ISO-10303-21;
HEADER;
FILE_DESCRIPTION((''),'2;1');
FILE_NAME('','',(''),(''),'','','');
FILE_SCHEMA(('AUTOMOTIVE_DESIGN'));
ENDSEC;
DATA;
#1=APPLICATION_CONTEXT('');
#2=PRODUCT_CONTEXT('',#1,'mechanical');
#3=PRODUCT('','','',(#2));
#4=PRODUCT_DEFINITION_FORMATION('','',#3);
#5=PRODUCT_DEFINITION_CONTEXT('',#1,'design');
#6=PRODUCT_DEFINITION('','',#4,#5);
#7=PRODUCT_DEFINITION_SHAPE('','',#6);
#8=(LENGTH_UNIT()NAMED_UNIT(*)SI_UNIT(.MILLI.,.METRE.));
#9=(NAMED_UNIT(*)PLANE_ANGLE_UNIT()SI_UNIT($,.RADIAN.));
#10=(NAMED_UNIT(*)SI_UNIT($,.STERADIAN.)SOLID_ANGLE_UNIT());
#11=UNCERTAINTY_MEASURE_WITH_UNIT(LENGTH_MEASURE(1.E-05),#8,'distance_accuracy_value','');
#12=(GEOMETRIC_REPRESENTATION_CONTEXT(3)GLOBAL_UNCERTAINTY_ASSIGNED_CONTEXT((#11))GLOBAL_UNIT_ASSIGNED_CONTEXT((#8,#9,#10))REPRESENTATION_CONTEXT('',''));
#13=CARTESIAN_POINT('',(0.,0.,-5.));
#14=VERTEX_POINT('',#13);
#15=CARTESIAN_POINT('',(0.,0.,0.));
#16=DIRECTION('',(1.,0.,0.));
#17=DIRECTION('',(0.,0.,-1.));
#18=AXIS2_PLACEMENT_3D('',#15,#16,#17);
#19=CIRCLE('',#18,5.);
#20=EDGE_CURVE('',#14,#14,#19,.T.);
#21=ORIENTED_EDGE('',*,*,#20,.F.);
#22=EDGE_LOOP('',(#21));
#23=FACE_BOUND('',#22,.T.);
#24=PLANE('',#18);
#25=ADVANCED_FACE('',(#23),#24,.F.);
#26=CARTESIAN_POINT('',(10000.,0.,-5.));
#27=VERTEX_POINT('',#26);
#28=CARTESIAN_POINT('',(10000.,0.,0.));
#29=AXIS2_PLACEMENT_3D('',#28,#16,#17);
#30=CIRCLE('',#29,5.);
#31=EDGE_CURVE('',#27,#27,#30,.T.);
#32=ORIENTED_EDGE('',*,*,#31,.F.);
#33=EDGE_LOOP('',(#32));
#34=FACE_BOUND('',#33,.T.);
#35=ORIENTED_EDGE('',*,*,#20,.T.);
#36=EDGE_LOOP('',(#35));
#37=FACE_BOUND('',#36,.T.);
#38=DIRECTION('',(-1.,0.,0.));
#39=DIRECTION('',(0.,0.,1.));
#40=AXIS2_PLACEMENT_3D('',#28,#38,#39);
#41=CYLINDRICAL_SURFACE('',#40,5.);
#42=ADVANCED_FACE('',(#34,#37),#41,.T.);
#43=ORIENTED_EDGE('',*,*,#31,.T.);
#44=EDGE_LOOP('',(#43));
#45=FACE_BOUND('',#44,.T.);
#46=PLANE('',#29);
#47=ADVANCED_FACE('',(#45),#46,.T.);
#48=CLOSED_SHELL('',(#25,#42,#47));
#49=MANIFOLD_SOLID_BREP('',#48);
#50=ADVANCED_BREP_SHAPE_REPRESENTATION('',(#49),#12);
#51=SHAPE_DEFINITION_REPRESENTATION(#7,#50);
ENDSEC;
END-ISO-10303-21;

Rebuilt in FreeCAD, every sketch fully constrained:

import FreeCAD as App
import Part
import Sketcher
from FreeCAD import Vector
Q = App.Units.Quantity

doc = App.newDocument("Part")
body = doc.addObject("PartDesign::Body", "Body")

# Sketch on YZ plane
sketch1 = body.newObject("Sketcher::SketchObject", "Sketch")
sketch1.AttachmentSupport = (doc.getObject("YZ_Plane"), [""])
sketch1.MapMode = "FlatFace"
sketch1.addGeometry(Part.Circle(Vector(0, 0, 0), Vector(0, 0, 1), 5), False)
sketch1.addConstraint([
    Sketcher.Constraint("Coincident", 0, 3, -1, 1),
    Sketcher.Constraint("Diameter", 0, Q("10 mm")),
])
pad1 = body.newObject("PartDesign::Pad", "Pad")
pad1.Profile = sketch1
pad1.Length = 10000

doc.recompute()
